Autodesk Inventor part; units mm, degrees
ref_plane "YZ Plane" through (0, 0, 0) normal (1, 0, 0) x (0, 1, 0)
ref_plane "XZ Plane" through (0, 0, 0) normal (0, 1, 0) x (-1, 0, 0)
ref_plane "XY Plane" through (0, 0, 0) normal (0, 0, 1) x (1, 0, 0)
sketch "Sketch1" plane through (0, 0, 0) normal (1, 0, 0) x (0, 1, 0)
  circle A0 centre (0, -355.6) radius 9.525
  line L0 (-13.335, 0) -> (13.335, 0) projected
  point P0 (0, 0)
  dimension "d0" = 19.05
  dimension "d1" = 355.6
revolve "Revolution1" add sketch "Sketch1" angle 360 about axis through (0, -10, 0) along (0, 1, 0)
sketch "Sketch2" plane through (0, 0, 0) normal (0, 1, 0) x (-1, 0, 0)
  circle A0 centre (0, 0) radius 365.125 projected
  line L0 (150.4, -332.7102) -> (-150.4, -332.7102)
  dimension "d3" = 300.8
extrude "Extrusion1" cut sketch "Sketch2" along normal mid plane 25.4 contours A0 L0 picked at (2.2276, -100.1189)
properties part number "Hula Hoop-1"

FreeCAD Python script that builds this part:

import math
import FreeCAD as App
import Part
import Sketcher
from FreeCAD import Vector
Q = App.Units.Quantity

doc = App.newDocument("Part")
params = doc.addObject("Spreadsheet::Sheet", "Params")
for row, (alias, value) in enumerate([
    ("sketch1_diameter", "0.75 in"),
    ("revolution_angle", "360 deg"),
    ("sketch2_radius", "14.375 in"),
    ("pocket1_length", "1 in"),
], start=1):
    params.set(f"A{row}", alias)
    params.set(f"B{row}", "=" + value)
    params.setAlias(f"B{row}", alias)

body = doc.addObject("PartDesign::Body", "Body")

# Sketch on YZ plane
sketch1 = doc.addObject("Sketcher::SketchObject", "Sketch")
body.addObject(sketch1)
sketch1.AttachmentSupport = (doc.YZ_Plane, [""])
sketch1.MapMode = "FlatFace"
sketch1.addGeometry(Part.Circle(Vector(0, -356, 0), Vector(0, 0, 1), 10), False)
sketch1.addConstraint(Sketcher.Constraint("PointOnObject", 0, 3, -2))
sketch1.addConstraint(Sketcher.Constraint("Diameter", 0, Q("0.75 in")))
sketch1.addConstraint(Sketcher.Constraint("DistanceY", 0, 3, -1, 1, Q("14 in")))
sketch1.setExpression("Constraints[1]", "Params.sketch1_diameter")
revolution = doc.addObject("PartDesign::Revolution", "Revolution")
body.addObject(revolution)
revolution.Profile = sketch1
revolution.ReferenceAxis = (sketch1, ["H_Axis"])
revolution.setExpression("Angle", "Params.revolution_angle")

# Sketch on XZ plane
sketch2 = doc.addObject("Sketcher::SketchObject", "Sketch001")
body.addObject(sketch2)
sketch2.AttachmentSupport = (doc.XZ_Plane, [""])
sketch2.MapMode = "FlatFace"
sketch2.addGeometry(Part.ArcOfCircle(Part.Circle(Vector(0, 0, 0), Vector(0, 0, 1), 365), math.radians(-66), math.radians(246)), False)
sketch2.addGeometry(Part.LineSegment(Vector(-150, -333, 0), Vector(150, -333, 0)), False)
sketch2.addConstraint(Sketcher.Constraint("Coincident", 0, 1, 1, 2))
sketch2.addConstraint(Sketcher.Constraint("Coincident", 1, 1, 0, 2))
sketch2.addConstraint(Sketcher.Constraint("Horizontal", 1))
sketch2.addConstraint(Sketcher.Constraint("Coincident", 0, 3, -1, 1))
sketch2.addConstraint(Sketcher.Constraint("Radius", 0, Q("14.375 in")))
sketch2.addConstraint(Sketcher.Constraint("DistanceX", 1, 1, 1, 2, 300.8))
sketch2.setExpression("Constraints[4]", "Params.sketch2_radius")
pocket1 = doc.addObject("PartDesign::Pocket", "Pocket")
body.addObject(pocket1)
pocket1.Profile = sketch2
pocket1.setExpression("Length", "Params.pocket1_length")
pocket1.Midplane = True

doc.recompute()
